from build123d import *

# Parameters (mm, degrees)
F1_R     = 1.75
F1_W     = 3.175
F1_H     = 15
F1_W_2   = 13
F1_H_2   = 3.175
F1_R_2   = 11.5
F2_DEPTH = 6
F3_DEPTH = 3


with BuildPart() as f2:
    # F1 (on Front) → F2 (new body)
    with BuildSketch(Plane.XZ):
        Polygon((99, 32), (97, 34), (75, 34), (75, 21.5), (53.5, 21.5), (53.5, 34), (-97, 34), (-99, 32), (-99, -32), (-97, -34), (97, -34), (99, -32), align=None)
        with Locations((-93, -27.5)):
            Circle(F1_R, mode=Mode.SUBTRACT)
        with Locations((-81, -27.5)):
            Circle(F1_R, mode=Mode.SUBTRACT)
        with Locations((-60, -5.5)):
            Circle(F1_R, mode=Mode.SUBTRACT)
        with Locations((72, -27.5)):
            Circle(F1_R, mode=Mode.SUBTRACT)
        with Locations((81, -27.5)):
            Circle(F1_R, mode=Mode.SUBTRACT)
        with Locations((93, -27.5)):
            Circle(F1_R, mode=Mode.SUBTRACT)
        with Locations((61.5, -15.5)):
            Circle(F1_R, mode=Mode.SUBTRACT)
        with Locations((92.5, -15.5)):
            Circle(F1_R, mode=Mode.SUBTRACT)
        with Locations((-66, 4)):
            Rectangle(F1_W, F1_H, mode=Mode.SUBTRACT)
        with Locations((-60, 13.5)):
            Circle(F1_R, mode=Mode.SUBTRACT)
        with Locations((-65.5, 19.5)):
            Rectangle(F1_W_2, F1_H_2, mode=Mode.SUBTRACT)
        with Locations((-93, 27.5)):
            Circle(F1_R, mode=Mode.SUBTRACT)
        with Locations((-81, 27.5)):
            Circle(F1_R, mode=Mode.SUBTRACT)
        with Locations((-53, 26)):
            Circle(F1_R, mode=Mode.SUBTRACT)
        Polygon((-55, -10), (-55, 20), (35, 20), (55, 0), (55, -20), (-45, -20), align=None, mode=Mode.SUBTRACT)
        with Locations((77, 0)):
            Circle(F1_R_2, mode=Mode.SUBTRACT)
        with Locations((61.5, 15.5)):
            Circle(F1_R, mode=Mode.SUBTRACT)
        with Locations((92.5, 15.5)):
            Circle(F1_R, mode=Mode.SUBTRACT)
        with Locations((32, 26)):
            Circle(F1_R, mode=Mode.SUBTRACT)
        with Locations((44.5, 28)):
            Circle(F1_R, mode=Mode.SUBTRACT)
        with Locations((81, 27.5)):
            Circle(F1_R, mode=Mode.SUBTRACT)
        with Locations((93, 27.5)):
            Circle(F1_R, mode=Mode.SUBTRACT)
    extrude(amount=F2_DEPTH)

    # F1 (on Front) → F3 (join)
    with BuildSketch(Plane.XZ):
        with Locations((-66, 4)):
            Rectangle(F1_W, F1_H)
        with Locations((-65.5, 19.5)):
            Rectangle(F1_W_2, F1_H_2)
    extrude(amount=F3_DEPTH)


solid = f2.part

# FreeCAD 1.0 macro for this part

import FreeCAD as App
import Part
import Sketcher
from FreeCAD import Vector


def add_polygon(sketch, points):
    """Adds a closed chain of lines whose ends are joined by coincident constraints."""
    first, n = sketch.GeometryCount, len(points)
    for a, b in zip(points, points[1:] + points[:1]):
        sketch.addGeometry(Part.LineSegment(App.Vector(*a, 0), App.Vector(*b, 0)), False)
    for i in range(n):
        sketch.addConstraint(Sketcher.Constraint("Coincident", first + i, 2, first + (i + 1) % n, 1))

doc = App.newDocument("Part")
body = doc.addObject("PartDesign::Body", "Body")

# Sketch on XZ plane
sketch1 = doc.addObject("Sketcher::SketchObject", "Sketch")
body.addObject(sketch1)
sketch1.AttachmentSupport = (doc.XZ_Plane, [""])
sketch1.MapMode = "FlatFace"
add_polygon(sketch1, [(99, 32), (97, 34), (75, 34), (75, 21.5), (53.5, 21.5), (53.5, 34), (-97, 34), (-99, 32), (-99, -32), (-97, -34), (97, -34), (99, -32)])  # lines 0-11
sketch1.addGeometry(Part.Circle(Vector(-93, -27.5, 0), Vector(0, 0, 1), 1.8), False)  # 12
sketch1.addGeometry(Part.Circle(Vector(-81, -27.5, 0), Vector(0, 0, 1), 1.8), False)  # 13
sketch1.addGeometry(Part.Circle(Vector(-60, -5.5, 0), Vector(0, 0, 1), 1.8), False)  # 14
sketch1.addGeometry(Part.Circle(Vector(72, -27.5, 0), Vector(0, 0, 1), 1.8), False)  # 15
sketch1.addGeometry(Part.Circle(Vector(81, -27.5, 0), Vector(0, 0, 1), 1.8), False)  # 16
sketch1.addGeometry(Part.Circle(Vector(93, -27.5, 0), Vector(0, 0, 1), 1.8), False)  # 17
sketch1.addGeometry(Part.Circle(Vector(61.5, -15.5, 0), Vector(0, 0, 1), 1.8), False)  # 18
sketch1.addGeometry(Part.Circle(Vector(92.5, -15.5, 0), Vector(0, 0, 1), 1.8), False)  # 19
add_polygon(sketch1, [(-45, -20), (-55, -10), (-55, 20), (35, 20), (55, 0), (55, -20)])  # lines 20-25
sketch1.addGeometry(Part.Circle(Vector(77, 0, 0), Vector(0, 0, 1), 11.5), False)  # 26
add_polygon(sketch1, [(-64.4, -3.5), (-67.6, -3.5), (-67.6, 11.5), (-64.4, 11.5)])  # lines 27-30
sketch1.addGeometry(Part.Circle(Vector(-60, 13.5, 0), Vector(0, 0, 1), 1.8), False)  # 31
add_polygon(sketch1, [(-59, 17.9), (-72, 17.9), (-72, 21.1), (-59, 21.1)])  # lines 32-35
sketch1.addGeometry(Part.Circle(Vector(-93, 27.5, 0), Vector(0, 0, 1), 1.8), False)  # 36
sketch1.addGeometry(Part.Circle(Vector(-81, 27.5, 0), Vector(0, 0, 1), 1.8), False)  # 37
sketch1.addGeometry(Part.Circle(Vector(-53, 26, 0), Vector(0, 0, 1), 1.8), False)  # 38
sketch1.addGeometry(Part.Circle(Vector(32, 26, 0), Vector(0, 0, 1), 1.8), False)  # 39
sketch1.addGeometry(Part.Circle(Vector(44.5, 28, 0), Vector(0, 0, 1), 1.8), False)  # 40
sketch1.addGeometry(Part.Circle(Vector(61.5, 15.5, 0), Vector(0, 0, 1), 1.8), False)  # 41
sketch1.addGeometry(Part.Circle(Vector(92.5, 15.5, 0), Vector(0, 0, 1), 1.8), False)  # 42
sketch1.addGeometry(Part.Circle(Vector(81, 27.5, 0), Vector(0, 0, 1), 1.8), False)  # 43
sketch1.addGeometry(Part.Circle(Vector(93, 27.5, 0), Vector(0, 0, 1), 1.8), False)  # 44
sketch1.addConstraint([
    Sketcher.Constraint("Horizontal", 1),
    Sketcher.Constraint("Vertical", 2),
    Sketcher.Constraint("Horizontal", 3),
    Sketcher.Constraint("Vertical", 4),
    Sketcher.Constraint("Horizontal", 5),
    Sketcher.Constraint("Vertical", 7),
    Sketcher.Constraint("Horizontal", 9),
    Sketcher.Constraint("Vertical", 11),
    Sketcher.Constraint("Vertical", 21),
    Sketcher.Constraint("Horizontal", 22),
    Sketcher.Constraint("Vertical", 24),
    Sketcher.Constraint("Horizontal", 25),
    Sketcher.Constraint("Horizontal", 27),
    Sketcher.Constraint("Vertical", 28),
    Sketcher.Constraint("Horizontal", 29),
    Sketcher.Constraint("Vertical", 30),
    Sketcher.Constraint("Horizontal", 32),
    Sketcher.Constraint("Vertical", 33),
    Sketcher.Constraint("Horizontal", 34),
    Sketcher.Constraint("Vertical", 35),
    Sketcher.Constraint("Equal", 12, 13),
    Sketcher.Constraint("Equal", 13, 14),
    Sketcher.Constraint("Equal", 14, 15),
    Sketcher.Constraint("Equal", 15, 16),
    Sketcher.Constraint("Equal", 16, 17),
    Sketcher.Constraint("Equal", 17, 18),
    Sketcher.Constraint("Equal", 18, 19),
    Sketcher.Constraint("Equal", 19, 31),
    Sketcher.Constraint("Equal", 31, 36),
    Sketcher.Constraint("Equal", 36, 37),
    Sketcher.Constraint("Equal", 37, 38),
    Sketcher.Constraint("Equal", 38, 39),
    Sketcher.Constraint("Equal", 39, 40),
    Sketcher.Constraint("Equal", 40, 41),
    Sketcher.Constraint("Equal", 41, 42),
    Sketcher.Constraint("Equal", 42, 43),
    Sketcher.Constraint("Equal", 43, 44),
    Sketcher.Constraint("Symmetric", 17, 3, 36, 3, -1, 1),
    Sketcher.Constraint("Symmetric", 16, 3, 37, 3, -1, 1),
    Sketcher.Constraint("Symmetric", 13, 3, 43, 3, -1, 1),
    Sketcher.Constraint("Symmetric", 12, 3, 44, 3, -1, 1),
    Sketcher.Constraint("Symmetric", 0, 2, 8, 2, -1, 1),
    Sketcher.Constraint("Symmetric", 5, 2, 9, 2, -1, 1),
    Sketcher.Constraint("Symmetric", 6, 2, 10, 2, -1, 1),
    Sketcher.Constraint("Symmetric", 21, 2, 24, 2, -1, 1),
    Sketcher.Constraint("Symmetric", 13, 3, 16, 3, -2),
    Sketcher.Constraint("Symmetric", 12, 3, 17, 3, -2),
    Sketcher.Constraint("Symmetric", 18, 3, 41, 3, -1),
    Sketcher.Constraint("Symmetric", 19, 3, 42, 3, -1),
    Sketcher.Constraint("PointOnObject", 26, 3, -1),
    Sketcher.Constraint("PointOnObject", 23, 2, -1),
    Sketcher.Constraint("Perpendicular", 0, 6),
    Sketcher.Constraint("Perpendicular", 6, 8),
    Sketcher.Constraint("Perpendicular", 10, 20),
    Sketcher.Constraint("Parallel", 20, 23),
    Sketcher.Constraint("Horizontal", 12, 3, 13, 3),
    Sketcher.Constraint("Horizontal", 13, 3, 15, 3),
    Sketcher.Constraint("Horizontal", 18, 3, 19, 3),
    Sketcher.Constraint("Horizontal", 38, 3, 39, 3),
    Sketcher.Constraint("Horizontal", 7, 2, 10, 2),
    Sketcher.Constraint("Vertical", 14, 3, 31, 3),
    Sketcher.Constraint("Vertical", 5, 2, 8, 2),
    Sketcher.Constraint("Equal", 29, 33),
    Sketcher.Constraint("Diameter", 26, 23.0),
    Sketcher.Constraint("Diameter", 12, 3.5),
    Sketcher.Constraint("DistanceX", 1, 2, 1, 1, 22.0),
    Sketcher.Constraint("DistanceX", 9, 1, 9, 2, 194.0),
    Sketcher.Constraint("DistanceX", 22, 1, 22, 2, 90.0),
    Sketcher.Constraint("DistanceX", 25, 2, 25, 1, 100.0),
    Sketcher.Constraint("DistanceX", 32, 2, 32, 1, 13.0),
    Sketcher.Constraint("DistanceY", 7, 2, 7, 1, 64.0),
    Sketcher.Constraint("DistanceY", 21, 1, 21, 2, 30.0),
    Sketcher.Constraint("DistanceY", 28, 1, 28, 2, 15.0),
    Sketcher.Constraint("DistanceX", 3, 2, 3, 1, 21.5),
    Sketcher.Constraint("DistanceY", 2, 2, 2, 1, 12.5),
    Sketcher.Constraint("DistanceX", 12, 3, -1, 1, 93.0),
    Sketcher.Constraint("DistanceX", 13, 3, -1, 1, 81.0),
    Sketcher.Constraint("DistanceX", 14, 3, -1, 1, 60.0),
    Sketcher.Constraint("DistanceX", -1, 1, 15, 3, 72.0),
    Sketcher.Constraint("DistanceX", -1, 1, 26, 3, 77.0),
    Sketcher.Constraint("DistanceX", 38, 3, -1, 1, 53.0),
    Sketcher.Constraint("DistanceY", -1, 1, 38, 3, 26.0),
    Sketcher.Constraint("DistanceX", -1, 1, 39, 3, 32.0),
    Sketcher.Constraint("DistanceY", -1, 1, 40, 3, 28.0),
    Sketcher.Constraint("DistanceY", -1, 1, 0, 2, 34.0),
    Sketcher.Constraint("DistanceX", 32, 2, -1, 1, 72.0),
    Sketcher.Constraint("DistanceY", 13, 3, 14, 3, 22.0),
    Sketcher.Constraint("DistanceY", 15, 3, 18, 3, 12.0),
    Sketcher.Constraint("DistanceX", 18, 3, 19, 3, 31.0),
    Sketcher.Constraint("DistanceY", 14, 3, 31, 3, 19.0),
    Sketcher.Constraint("DistanceY", 31, 3, 36, 3, 14.0),
    Sketcher.Constraint("DistanceX", 40, 3, 18, 3, 17.0),
    Sketcher.Constraint("DistanceX", 3, 2, 41, 3, 8.0),
    Sketcher.Constraint("DistanceY", 14, 3, 27, 2, 2.0),
    Sketcher.Constraint("DistanceX", 27, 2, 27, 1, 3.175),
    Sketcher.Constraint("DistanceX", 27, 2, -1, 1, 67.5875),
    Sketcher.Constraint("DistanceY", -1, 1, 32, 2, 17.9125),
])
pad1 = doc.addObject("PartDesign::Pad", "Pad")
body.addObject(pad1)
pad1.Profile = sketch1
pad1.Length = 6

# Sketch on XZ plane
sketch2 = doc.addObject("Sketcher::SketchObject", "Sketch001")
body.addObject(sketch2)
sketch2.AttachmentSupport = (doc.XZ_Plane, [""])
sketch2.MapMode = "FlatFace"
add_polygon(sketch2, [(-67.6, 11.5), (-67.6, -3.5), (-64.4, -3.5), (-64.4, 11.5)])  # lines 0-3
add_polygon(sketch2, [(-72, 21.1), (-72, 17.9), (-59, 17.9), (-59, 21.1)])  # lines 4-7
sketch2.addConstraint([
    Sketcher.Constraint("Vertical", 0),
    Sketcher.Constraint("Horizontal", 1),
    Sketcher.Constraint("Vertical", 2),
    Sketcher.Constraint("Horizontal", 3),
    Sketcher.Constraint("Vertical", 4),
    Sketcher.Constraint("Horizontal", 5),
    Sketcher.Constraint("Vertical", 6),
    Sketcher.Constraint("Horizontal", 7),
    Sketcher.Constraint("Equal", 3, 4),
    Sketcher.Constraint("DistanceX", 5, 1, 5, 2, 13.0),
    Sketcher.Constraint("DistanceY", 0, 2, 0, 1, 15.0),
    Sketcher.Constraint("DistanceX", 4, 2, -1, 1, 72.0),
    Sketcher.Constraint("DistanceY", 0, 2, -1, 1, 3.5),
    Sketcher.Constraint("DistanceX", 1, 1, 1, 2, 3.175),
    Sketcher.Constraint("DistanceX", 0, 2, -1, 1, 67.5875),
    Sketcher.Constraint("DistanceY", -1, 1, 4, 2, 17.9125),
])
pad2 = doc.addObject("PartDesign::Pad", "Pad001")
body.addObject(pad2)
pad2.Profile = sketch2
pad2.Length = 3

doc.recompute()
